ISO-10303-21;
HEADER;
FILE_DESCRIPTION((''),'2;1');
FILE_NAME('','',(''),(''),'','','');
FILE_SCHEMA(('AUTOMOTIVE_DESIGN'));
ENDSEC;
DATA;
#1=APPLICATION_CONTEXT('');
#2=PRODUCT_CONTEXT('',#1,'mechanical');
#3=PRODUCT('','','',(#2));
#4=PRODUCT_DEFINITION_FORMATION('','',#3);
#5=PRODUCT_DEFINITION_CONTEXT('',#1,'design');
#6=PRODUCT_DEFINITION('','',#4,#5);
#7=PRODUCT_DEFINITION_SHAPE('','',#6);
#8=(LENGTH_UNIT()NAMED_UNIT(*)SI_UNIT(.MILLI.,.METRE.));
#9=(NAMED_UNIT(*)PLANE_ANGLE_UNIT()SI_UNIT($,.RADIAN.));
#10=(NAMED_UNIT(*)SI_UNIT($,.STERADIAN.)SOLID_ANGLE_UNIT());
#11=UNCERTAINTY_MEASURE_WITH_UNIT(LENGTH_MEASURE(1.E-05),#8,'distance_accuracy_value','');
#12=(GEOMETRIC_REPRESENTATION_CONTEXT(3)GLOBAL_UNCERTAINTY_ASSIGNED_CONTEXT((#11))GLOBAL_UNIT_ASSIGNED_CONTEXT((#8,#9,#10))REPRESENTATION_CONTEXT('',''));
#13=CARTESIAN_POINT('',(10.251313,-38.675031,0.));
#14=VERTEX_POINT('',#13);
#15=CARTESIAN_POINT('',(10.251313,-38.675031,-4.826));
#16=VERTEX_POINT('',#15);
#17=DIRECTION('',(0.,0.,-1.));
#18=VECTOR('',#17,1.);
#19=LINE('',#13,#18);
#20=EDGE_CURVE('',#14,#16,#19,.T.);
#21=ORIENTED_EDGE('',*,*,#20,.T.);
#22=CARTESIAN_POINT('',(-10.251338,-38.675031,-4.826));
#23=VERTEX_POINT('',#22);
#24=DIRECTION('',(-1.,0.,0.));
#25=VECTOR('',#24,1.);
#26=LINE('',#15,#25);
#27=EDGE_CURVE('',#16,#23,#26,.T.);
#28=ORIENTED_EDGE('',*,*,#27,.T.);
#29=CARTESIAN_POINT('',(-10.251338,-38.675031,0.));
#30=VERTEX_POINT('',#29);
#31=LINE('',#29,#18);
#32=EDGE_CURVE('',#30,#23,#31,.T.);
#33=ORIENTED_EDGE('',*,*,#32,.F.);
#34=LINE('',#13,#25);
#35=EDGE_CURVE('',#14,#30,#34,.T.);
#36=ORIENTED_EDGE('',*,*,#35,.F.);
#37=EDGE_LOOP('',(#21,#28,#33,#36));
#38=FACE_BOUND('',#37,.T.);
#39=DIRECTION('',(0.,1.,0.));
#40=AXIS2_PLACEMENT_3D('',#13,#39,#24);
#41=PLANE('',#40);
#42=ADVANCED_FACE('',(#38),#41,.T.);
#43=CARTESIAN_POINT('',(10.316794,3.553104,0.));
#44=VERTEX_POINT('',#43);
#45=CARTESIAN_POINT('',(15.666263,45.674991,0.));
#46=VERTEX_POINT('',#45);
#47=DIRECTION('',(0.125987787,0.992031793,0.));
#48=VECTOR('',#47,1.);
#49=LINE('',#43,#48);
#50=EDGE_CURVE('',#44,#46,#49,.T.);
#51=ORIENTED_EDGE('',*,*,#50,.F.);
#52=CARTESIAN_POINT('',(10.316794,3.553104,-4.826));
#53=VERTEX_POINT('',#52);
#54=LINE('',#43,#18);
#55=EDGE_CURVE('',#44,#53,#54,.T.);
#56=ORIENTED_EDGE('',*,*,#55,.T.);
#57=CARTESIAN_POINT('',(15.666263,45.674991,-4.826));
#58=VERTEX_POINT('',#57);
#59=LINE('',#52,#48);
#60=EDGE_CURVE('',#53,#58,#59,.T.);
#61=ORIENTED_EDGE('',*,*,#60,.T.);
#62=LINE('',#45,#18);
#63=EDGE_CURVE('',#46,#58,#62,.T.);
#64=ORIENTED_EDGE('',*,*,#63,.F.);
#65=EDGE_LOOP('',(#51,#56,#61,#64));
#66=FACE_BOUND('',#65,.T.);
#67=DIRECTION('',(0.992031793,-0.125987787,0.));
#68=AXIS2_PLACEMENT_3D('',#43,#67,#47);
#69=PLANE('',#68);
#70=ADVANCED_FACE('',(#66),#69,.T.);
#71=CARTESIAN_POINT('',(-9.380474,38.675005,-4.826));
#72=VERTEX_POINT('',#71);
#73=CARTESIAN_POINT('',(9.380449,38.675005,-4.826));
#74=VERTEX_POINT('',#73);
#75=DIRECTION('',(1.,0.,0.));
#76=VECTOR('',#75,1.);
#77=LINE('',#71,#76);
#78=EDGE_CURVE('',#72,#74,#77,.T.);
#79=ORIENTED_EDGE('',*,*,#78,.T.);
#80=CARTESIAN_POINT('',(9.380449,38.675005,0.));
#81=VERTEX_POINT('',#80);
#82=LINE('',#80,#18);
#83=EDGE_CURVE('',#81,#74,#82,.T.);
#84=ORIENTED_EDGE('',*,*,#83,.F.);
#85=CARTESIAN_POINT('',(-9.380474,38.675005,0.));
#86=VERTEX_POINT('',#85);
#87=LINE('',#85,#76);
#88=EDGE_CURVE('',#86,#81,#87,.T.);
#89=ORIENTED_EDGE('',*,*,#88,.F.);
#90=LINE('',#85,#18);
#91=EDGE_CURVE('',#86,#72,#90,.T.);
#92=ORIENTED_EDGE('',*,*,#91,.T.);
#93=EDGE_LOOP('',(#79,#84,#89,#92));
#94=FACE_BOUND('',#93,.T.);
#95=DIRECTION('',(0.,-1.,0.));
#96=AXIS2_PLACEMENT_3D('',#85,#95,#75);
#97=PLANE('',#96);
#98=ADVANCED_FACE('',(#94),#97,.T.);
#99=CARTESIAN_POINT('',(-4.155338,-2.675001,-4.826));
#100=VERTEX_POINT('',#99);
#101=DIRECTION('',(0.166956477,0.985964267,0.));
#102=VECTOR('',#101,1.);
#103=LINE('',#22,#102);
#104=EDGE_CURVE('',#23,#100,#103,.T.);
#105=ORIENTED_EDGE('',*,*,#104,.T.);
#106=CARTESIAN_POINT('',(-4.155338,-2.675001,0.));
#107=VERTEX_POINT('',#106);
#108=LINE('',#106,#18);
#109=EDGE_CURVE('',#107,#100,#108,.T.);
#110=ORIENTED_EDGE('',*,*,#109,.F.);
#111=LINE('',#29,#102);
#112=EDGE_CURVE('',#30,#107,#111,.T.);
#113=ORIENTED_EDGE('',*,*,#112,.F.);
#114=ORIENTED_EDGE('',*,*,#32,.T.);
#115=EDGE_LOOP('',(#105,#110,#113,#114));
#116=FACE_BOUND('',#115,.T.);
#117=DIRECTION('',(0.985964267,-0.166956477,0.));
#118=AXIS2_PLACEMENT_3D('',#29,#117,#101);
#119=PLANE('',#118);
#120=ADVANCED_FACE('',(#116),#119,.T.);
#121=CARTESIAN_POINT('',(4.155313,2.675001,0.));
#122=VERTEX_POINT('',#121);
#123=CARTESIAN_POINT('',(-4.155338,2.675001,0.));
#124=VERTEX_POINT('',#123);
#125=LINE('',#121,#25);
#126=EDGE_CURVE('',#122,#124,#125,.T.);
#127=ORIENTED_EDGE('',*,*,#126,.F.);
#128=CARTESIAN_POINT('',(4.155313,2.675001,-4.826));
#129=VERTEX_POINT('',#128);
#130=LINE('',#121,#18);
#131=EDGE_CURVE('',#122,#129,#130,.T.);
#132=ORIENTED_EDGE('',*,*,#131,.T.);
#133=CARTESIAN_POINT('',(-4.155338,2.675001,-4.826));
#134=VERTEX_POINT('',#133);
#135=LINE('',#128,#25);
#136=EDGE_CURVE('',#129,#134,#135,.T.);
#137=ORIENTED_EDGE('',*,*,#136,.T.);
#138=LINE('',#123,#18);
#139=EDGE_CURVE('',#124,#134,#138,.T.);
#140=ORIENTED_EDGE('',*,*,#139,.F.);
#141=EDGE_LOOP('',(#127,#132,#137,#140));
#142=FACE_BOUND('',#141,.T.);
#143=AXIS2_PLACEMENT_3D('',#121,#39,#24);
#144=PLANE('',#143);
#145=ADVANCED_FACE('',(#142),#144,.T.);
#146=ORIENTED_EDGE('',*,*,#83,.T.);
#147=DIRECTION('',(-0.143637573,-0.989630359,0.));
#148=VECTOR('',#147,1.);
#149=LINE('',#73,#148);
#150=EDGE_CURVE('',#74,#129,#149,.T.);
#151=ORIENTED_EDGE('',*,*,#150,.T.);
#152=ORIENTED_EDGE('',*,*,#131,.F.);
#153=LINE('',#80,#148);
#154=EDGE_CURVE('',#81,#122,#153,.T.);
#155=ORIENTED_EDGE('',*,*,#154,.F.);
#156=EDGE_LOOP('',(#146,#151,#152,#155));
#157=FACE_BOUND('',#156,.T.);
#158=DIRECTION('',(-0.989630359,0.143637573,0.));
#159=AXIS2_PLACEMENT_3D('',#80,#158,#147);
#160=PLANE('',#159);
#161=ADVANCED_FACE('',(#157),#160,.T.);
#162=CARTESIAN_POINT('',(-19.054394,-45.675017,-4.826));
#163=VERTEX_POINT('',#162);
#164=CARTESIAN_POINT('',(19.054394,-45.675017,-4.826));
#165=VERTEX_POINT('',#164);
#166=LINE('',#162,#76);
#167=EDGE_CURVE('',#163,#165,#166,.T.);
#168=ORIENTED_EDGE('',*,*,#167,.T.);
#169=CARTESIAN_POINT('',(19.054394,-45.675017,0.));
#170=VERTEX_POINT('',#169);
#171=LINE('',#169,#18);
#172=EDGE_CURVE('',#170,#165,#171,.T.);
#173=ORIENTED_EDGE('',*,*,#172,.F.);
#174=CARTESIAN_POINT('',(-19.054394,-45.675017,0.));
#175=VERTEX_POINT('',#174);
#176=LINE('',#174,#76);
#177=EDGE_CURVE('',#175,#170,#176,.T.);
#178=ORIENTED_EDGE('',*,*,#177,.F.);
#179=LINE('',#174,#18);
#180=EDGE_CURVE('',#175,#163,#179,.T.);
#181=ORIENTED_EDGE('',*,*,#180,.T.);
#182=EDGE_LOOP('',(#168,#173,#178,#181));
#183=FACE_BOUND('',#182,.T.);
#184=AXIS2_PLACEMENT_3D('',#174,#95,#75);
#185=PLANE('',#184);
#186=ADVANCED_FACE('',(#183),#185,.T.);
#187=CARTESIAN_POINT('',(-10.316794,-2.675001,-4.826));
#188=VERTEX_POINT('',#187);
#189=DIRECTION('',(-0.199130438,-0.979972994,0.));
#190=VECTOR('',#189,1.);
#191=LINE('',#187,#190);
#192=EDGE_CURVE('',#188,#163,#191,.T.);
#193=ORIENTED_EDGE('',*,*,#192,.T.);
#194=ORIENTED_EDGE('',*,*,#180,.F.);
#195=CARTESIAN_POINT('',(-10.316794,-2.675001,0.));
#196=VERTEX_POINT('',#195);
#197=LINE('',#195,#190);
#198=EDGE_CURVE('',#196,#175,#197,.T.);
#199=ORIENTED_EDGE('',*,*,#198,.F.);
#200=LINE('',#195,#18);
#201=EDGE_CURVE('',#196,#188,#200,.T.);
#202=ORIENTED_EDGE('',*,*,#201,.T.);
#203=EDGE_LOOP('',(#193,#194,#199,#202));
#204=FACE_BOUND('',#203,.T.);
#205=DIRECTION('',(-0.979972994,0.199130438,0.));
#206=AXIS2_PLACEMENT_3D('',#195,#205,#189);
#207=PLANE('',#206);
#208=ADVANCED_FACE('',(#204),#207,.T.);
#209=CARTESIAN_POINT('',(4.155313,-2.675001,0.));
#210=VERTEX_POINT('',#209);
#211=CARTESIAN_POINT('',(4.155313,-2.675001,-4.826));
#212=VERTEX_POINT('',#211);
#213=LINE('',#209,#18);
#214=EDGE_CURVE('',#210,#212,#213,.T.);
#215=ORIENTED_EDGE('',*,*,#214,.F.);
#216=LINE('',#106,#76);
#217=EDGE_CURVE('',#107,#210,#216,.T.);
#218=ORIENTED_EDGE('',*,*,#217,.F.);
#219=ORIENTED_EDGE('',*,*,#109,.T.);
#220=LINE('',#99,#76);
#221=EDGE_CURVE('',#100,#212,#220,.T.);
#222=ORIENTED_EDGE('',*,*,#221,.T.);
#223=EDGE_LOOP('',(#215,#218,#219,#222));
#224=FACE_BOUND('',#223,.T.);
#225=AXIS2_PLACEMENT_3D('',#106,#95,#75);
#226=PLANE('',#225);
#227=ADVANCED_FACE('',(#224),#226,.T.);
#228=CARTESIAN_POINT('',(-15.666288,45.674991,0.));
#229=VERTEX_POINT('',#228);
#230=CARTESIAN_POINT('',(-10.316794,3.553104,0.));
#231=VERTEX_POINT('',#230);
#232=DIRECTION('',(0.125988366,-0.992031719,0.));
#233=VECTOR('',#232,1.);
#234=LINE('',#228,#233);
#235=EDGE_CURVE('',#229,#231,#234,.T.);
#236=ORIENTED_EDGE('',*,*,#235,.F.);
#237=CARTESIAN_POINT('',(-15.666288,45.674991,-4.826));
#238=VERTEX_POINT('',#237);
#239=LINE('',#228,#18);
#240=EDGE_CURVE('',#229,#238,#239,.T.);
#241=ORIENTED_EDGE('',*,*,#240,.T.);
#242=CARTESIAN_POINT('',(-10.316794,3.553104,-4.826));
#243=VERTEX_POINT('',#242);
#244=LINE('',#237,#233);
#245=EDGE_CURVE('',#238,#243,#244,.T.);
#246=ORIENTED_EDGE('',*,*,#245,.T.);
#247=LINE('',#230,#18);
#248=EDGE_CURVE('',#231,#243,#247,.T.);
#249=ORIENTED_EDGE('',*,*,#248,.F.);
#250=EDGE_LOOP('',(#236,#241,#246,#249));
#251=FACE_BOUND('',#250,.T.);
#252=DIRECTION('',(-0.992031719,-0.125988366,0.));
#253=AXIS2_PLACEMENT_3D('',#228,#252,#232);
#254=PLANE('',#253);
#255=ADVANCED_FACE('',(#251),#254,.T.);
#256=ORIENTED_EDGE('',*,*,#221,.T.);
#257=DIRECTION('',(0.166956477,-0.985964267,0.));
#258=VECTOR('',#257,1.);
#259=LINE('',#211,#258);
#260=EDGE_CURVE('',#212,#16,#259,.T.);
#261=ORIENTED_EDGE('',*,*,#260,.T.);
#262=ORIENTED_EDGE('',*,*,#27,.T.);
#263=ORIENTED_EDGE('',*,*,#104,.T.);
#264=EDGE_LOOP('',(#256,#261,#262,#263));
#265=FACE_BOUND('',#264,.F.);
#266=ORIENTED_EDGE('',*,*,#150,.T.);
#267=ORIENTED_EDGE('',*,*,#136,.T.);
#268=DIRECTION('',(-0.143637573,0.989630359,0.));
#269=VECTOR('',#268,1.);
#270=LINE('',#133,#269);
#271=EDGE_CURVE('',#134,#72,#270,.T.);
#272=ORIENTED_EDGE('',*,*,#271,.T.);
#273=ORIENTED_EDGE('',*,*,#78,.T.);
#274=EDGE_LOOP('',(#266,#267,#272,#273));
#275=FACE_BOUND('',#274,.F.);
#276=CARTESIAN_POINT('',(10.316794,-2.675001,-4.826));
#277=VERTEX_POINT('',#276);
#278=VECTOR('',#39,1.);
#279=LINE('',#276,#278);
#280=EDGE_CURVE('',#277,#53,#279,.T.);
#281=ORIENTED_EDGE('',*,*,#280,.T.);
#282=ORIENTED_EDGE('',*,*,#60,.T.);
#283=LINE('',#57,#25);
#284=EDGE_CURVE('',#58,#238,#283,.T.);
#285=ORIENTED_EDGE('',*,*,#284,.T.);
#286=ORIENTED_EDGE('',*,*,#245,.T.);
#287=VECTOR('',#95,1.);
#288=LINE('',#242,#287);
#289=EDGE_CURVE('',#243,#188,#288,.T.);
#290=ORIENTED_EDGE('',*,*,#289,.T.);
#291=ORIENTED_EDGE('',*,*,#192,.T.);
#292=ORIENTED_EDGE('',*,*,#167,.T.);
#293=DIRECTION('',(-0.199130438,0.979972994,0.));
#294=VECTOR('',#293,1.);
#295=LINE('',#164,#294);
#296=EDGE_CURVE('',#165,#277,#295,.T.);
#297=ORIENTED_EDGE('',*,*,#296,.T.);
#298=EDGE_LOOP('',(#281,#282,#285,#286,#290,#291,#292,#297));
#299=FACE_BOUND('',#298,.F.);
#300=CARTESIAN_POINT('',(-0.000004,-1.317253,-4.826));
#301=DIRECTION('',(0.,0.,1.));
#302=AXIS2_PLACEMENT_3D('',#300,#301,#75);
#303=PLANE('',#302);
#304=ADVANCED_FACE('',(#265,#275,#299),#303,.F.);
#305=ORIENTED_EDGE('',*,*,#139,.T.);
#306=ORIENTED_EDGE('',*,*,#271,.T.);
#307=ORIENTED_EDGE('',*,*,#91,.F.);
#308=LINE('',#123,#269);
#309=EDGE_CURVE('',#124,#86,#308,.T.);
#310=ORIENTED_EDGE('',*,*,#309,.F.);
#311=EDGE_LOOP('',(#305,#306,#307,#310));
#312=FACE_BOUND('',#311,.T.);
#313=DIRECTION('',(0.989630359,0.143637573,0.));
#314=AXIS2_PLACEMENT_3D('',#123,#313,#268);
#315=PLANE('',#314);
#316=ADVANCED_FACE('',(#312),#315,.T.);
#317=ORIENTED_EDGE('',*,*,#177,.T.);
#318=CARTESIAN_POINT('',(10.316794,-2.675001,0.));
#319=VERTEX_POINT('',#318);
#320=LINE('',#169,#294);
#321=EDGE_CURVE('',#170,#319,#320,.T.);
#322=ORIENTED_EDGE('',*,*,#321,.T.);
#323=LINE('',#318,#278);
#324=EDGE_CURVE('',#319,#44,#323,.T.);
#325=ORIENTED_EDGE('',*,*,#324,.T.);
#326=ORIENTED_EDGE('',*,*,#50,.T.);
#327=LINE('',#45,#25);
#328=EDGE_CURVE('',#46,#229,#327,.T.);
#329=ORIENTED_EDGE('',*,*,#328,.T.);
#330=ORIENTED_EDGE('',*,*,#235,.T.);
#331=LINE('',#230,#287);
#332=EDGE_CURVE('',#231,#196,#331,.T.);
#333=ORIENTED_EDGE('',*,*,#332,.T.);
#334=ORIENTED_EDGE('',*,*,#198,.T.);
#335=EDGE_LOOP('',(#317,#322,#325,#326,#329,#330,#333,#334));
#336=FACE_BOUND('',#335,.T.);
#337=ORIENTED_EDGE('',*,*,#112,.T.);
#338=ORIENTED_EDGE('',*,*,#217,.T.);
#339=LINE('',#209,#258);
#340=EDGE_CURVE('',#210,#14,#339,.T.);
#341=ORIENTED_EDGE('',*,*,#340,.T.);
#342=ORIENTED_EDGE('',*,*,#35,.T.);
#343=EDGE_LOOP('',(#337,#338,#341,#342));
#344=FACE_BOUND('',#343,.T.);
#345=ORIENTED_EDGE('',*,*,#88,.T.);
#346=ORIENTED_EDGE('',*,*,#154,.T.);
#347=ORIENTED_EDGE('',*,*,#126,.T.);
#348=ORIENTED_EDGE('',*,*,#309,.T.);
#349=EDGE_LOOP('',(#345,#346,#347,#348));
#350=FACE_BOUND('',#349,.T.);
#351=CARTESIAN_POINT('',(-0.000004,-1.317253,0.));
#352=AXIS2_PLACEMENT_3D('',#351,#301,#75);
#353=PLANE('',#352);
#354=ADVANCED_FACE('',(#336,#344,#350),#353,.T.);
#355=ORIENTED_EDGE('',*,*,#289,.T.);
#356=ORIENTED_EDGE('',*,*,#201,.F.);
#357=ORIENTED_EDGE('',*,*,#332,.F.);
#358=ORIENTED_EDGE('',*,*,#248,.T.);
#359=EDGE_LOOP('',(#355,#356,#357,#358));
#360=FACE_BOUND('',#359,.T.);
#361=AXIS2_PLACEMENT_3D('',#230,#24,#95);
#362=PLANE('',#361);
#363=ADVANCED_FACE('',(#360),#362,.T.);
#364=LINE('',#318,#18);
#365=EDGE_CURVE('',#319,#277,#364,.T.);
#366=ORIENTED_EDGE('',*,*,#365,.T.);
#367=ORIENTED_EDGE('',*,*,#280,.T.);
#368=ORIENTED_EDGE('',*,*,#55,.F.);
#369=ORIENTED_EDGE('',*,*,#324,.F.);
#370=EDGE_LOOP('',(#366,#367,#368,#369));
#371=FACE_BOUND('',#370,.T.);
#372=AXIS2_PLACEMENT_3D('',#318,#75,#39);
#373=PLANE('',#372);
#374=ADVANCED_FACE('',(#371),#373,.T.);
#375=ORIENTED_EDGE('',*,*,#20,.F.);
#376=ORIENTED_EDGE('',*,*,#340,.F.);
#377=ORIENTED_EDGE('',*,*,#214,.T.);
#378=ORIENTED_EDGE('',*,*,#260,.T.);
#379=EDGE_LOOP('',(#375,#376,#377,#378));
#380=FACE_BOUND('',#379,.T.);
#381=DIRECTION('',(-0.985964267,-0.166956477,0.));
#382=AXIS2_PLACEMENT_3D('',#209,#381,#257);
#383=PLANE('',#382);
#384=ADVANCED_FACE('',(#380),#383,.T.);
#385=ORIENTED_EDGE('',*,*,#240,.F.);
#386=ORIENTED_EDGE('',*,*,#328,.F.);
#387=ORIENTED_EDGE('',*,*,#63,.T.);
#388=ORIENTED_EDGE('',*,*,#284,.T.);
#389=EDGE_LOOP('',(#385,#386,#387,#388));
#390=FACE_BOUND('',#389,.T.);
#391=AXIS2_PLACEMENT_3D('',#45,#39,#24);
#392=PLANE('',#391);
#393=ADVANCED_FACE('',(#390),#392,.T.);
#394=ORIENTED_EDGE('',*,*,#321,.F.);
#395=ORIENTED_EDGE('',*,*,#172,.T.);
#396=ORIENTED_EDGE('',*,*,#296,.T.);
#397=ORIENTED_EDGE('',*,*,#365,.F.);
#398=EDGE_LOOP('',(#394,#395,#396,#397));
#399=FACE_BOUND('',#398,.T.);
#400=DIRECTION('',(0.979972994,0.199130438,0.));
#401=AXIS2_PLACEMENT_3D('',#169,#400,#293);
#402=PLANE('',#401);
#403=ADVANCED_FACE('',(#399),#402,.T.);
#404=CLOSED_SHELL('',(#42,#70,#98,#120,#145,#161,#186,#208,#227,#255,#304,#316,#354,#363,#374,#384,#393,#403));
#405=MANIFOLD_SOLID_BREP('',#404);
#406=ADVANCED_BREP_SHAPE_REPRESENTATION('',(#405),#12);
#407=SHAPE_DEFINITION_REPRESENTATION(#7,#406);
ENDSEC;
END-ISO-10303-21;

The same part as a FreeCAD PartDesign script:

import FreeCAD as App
import Part
import Sketcher
Q = App.Units.Quantity

doc = App.newDocument("Part")
body = doc.addObject("PartDesign::Body", "Body")

sketch1 = body.newObject("Sketcher::SketchObject", "Sketch")
sketch1.AttachmentSupport = (doc.getObject("XY_Plane"), [""])
sketch1.MapMode = "FlatFace"
sketch1.addGeometry([
    Part.LineSegment(App.Vector(16, 46, 0), App.Vector(-16, 46, 0)),
    Part.LineSegment(App.Vector(-16, 46, 0), App.Vector(-10, 4, 0)),
    Part.LineSegment(App.Vector(-10, 4, 0), App.Vector(-10, -3, 0)),
    Part.LineSegment(App.Vector(-10, -3, 0), App.Vector(-19, -46, 0)),
    Part.LineSegment(App.Vector(-19, -46, 0), App.Vector(19, -46, 0)),
    Part.LineSegment(App.Vector(19, -46, 0), App.Vector(10, -3, 0)),
    Part.LineSegment(App.Vector(10, -3, 0), App.Vector(10, 4, 0)),
    Part.LineSegment(App.Vector(10, 4, 0), App.Vector(16, 46, 0)),
    Part.LineSegment(App.Vector(10, -39, 0), App.Vector(-10, -39, 0)),
    Part.LineSegment(App.Vector(-10, -39, 0), App.Vector(-4, -3, 0)),
    Part.LineSegment(App.Vector(-4, -3, 0), App.Vector(4, -3, 0)),
    Part.LineSegment(App.Vector(4, -3, 0), App.Vector(10, -39, 0)),
    Part.LineSegment(App.Vector(-9, 39, 0), App.Vector(9, 39, 0)),
    Part.LineSegment(App.Vector(9, 39, 0), App.Vector(4, 3, 0)),
    Part.LineSegment(App.Vector(4, 3, 0), App.Vector(-4, 3, 0)),
    Part.LineSegment(App.Vector(-4, 3, 0), App.Vector(-9, 39, 0)),
], False)
sketch1.addConstraint([
    Sketcher.Constraint("Coincident", 0, 2, 1, 1),
    Sketcher.Constraint("Coincident", 1, 2, 2, 1),
    Sketcher.Constraint("Coincident", 2, 2, 3, 1),
    Sketcher.Constraint("Coincident", 3, 2, 4, 1),
    Sketcher.Constraint("Coincident", 4, 2, 5, 1),
    Sketcher.Constraint("Coincident", 5, 2, 6, 1),
    Sketcher.Constraint("Coincident", 6, 2, 7, 1),
    Sketcher.Constraint("Coincident", 7, 2, 0, 1),
    Sketcher.Constraint("Coincident", 8, 2, 9, 1),
    Sketcher.Constraint("Coincident", 9, 2, 10, 1),
    Sketcher.Constraint("Coincident", 10, 2, 11, 1),
    Sketcher.Constraint("Coincident", 11, 2, 8, 1),
    Sketcher.Constraint("Coincident", 12, 2, 13, 1),
    Sketcher.Constraint("Coincident", 13, 2, 14, 1),
    Sketcher.Constraint("Coincident", 14, 2, 15, 1),
    Sketcher.Constraint("Coincident", 15, 2, 12, 1),
    Sketcher.Constraint("Horizontal", 0),
    Sketcher.Constraint("Vertical", 2),
    Sketcher.Constraint("Horizontal", 4),
    Sketcher.Constraint("Vertical", 6),
    Sketcher.Constraint("Horizontal", 8),
    Sketcher.Constraint("Horizontal", 10),
    Sketcher.Constraint("Horizontal", 12),
    Sketcher.Constraint("Horizontal", 14),
    Sketcher.Constraint("Symmetric", 2, 2, 5, 2, -2),
    Sketcher.Constraint("Symmetric", 10, 2, 13, 2, -1),
    Sketcher.Constraint("Horizontal", 1, 2, 6, 2),
    Sketcher.Constraint("Horizontal", 5, 2, 9, 2),
    Sketcher.Constraint("Vertical", 9, 2, 14, 2),
    Sketcher.Constraint("Equal", 3, 5),
    Sketcher.Constraint("Equal", 9, 11),
    Sketcher.Constraint("Equal", 13, 15),
    Sketcher.Constraint("DistanceX", 8, 2, 9, 2, Q("0.24 in")),
    Sketcher.Constraint("DistanceX", 3, 2, 2, 2, Q("0.344 in")),
    Sketcher.Constraint("DistanceX", 0, 2, 0, 1, Q("31.332551 mm")),
    Sketcher.Constraint("DistanceX", 8, 2, 8, 1, Q("20.502651 mm")),
    Sketcher.Constraint("DistanceY", 2, 2, -1, 1, Q("2.675001 mm")),
    Sketcher.Constraint("DistanceY", 6, 2, 12, 2, Q("35.121901 mm")),
    Sketcher.Constraint("Distance", 1, Q("42.460222 mm")),
    Sketcher.Constraint("Distance", 7, Q("42.460219 mm")),
    Sketcher.Constraint("Distance", 9, Q("36.51251 mm")),
    Sketcher.Constraint("DistanceX", 4, 1, 4, 2, Q("38.108788 mm")),
    Sketcher.Constraint("DistanceX", 12, 1, 12, 2, Q("18.760923 mm")),
    Sketcher.Constraint("DistanceY", 2, 2, 2, 1, Q("6.228105 mm")),
    Sketcher.Constraint("DistanceX", 9, 2, -1, 1, Q("4.155338 mm")),
    Sketcher.Constraint("DistanceY", 3, 2, 1, 2, Q("49.228121 mm")),
])
pad1 = body.newObject("PartDesign::Pad", "Pad")
pad1.Profile = sketch1
pad1.Length = Q("0.19 in")
pad1.Reversed = True

doc.recompute()
